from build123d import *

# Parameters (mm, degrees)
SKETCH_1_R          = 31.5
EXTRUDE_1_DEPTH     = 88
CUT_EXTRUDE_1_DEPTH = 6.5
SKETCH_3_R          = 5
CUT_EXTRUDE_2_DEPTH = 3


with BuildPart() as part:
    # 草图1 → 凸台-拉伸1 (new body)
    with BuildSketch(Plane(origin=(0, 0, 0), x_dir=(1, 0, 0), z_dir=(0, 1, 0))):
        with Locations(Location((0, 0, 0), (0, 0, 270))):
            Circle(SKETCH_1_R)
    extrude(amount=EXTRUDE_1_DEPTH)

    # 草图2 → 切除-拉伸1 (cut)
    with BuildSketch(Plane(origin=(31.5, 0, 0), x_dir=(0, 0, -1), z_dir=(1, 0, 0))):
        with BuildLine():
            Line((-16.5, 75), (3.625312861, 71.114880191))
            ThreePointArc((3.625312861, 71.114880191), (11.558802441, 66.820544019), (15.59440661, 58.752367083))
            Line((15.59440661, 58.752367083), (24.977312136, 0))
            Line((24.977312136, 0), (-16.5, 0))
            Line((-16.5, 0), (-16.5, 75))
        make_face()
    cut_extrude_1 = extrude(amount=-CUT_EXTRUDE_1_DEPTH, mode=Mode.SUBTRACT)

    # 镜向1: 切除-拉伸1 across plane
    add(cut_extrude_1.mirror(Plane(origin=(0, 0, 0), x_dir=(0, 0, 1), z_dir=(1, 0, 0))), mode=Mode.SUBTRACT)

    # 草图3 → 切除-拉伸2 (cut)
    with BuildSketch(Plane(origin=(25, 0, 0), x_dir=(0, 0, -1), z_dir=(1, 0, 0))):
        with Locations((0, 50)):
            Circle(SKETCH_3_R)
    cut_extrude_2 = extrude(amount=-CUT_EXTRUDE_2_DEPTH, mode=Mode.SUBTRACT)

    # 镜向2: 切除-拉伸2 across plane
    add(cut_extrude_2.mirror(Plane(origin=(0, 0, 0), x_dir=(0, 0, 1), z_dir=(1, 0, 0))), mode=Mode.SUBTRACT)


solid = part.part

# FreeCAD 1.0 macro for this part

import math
import FreeCAD as App
import Part
import Sketcher

V = App.Vector
Q = App.Units.Quantity

doc = App.newDocument("Part")
body = doc.addObject("PartDesign::Body", "Body")

# Sketch on XZ plane
sketch1 = body.newObject("Sketcher::SketchObject", "Sketch")
sketch1.AttachmentSupport = (doc.getObject("XZ_Plane"), [""])
sketch1.MapMode = "FlatFace"
sketch1.addGeometry(Part.Circle(V(0, 0, 0), V(0, 0, 1), 31.5), False)
sketch1.addConstraint([
    Sketcher.Constraint("Coincident", 0, 3, -1, 1),
    Sketcher.Constraint("Diameter", 0, Q("63 mm")),
])
pad1 = body.newObject("PartDesign::Pad", "Pad")
pad1.Profile = sketch1
pad1.Length = 88
pad1.Reversed = True

# Sketch on YZ plane
sketch2 = body.newObject("Sketcher::SketchObject", "Sketch001")
sketch2.AttachmentSupport = (doc.getObject("YZ_Plane"), [""])
sketch2.MapMode = "FlatFace"
sketch2.AttachmentOffset = App.Placement(V(0, 0, 31.5), App.Rotation())
sketch2.addGeometry([
    Part.LineSegment(V(71.11488, -3.625313, 0), V(75, 16.5, 0)),  # 0
    Part.LineSegment(V(75, 16.5, 0), V(0, 16.5, 0)),  # 1
    Part.LineSegment(V(0, 16.5, 0), V(0, -24.977312, 0)),  # 2
    Part.LineSegment(V(0, -24.977312, 0), V(58.752367, -15.594407, 0)),  # 3
    Part.ArcOfCircle(Part.Circle(V(56.386805, -0.782111, 0), V(0, 0, 1), 15), math.radians(-80.926339), math.radians(-10.926339)),  # 4
], False)
sketch2.addConstraint([
    Sketcher.Constraint("Coincident", 0, 2, 1, 1),
    Sketcher.Constraint("Coincident", 1, 2, 2, 1),
    Sketcher.Constraint("Coincident", 2, 2, 3, 1),
    Sketcher.Constraint("Tangent", 3, 2, 4, 1),
    Sketcher.Constraint("Tangent", 4, 2, 0, 1),
    Sketcher.Constraint("Horizontal", 1),
    Sketcher.Constraint("Vertical", 2),
    Sketcher.Constraint("PointOnObject", 1, 2, -2),
    Sketcher.Constraint("Radius", 4, Q("15 mm")),
    Sketcher.Constraint("DistanceX", 1, 2, 1, 1, Q("75 mm")),
    Sketcher.Constraint("DistanceY", -1, 1, 0, 2, Q("16.5 mm")),
    Sketcher.Constraint("DistanceY", 2, 2, 4, 2, Q("21.351999 mm")),
    Sketcher.Constraint("DistanceY", 2, 2, 4, 3, Q("24.195202 mm")),
    Sketcher.Constraint("DistanceY", 2, 2, 2, 1, Q("41.477312 mm")),
])
pocket1 = body.newObject("PartDesign::Pocket", "Pocket")
pocket1.Profile = sketch2
pocket1.Length = 6.5
doc.recompute()

mirrored = body.newObject("PartDesign::Mirrored", "Mirrored")
mirrored.Originals = [pocket1]
mirrored.MirrorPlane = (doc.getObject("YZ_Plane"), [""])
body.Tip = mirrored

# Sketch on YZ plane
sketch3 = body.newObject("Sketcher::SketchObject", "Sketch002")
sketch3.AttachmentSupport = (doc.getObject("YZ_Plane"), [""])
sketch3.MapMode = "FlatFace"
sketch3.AttachmentOffset = App.Placement(V(0, 0, 25), App.Rotation())
sketch3.addGeometry(Part.Circle(V(50, 0, 0), V(0, 0, 1), 5), False)
sketch3.addConstraint([
    Sketcher.Constraint("PointOnObject", 0, 3, -1),
    Sketcher.Constraint("Diameter", 0, Q("10 mm")),
    Sketcher.Constraint("DistanceX", -1, 1, 0, 3, Q("50 mm")),
])
pocket2 = body.newObject("PartDesign::Pocket", "Pocket001")
pocket2.Profile = sketch3
pocket2.Length = 3
doc.recompute()

mirrored2 = body.newObject("PartDesign::Mirrored", "Mirrored001")
mirrored2.Originals = [pocket2]
mirrored2.MirrorPlane = (doc.getObject("YZ_Plane"), [""])
body.Tip = mirrored2

doc.recompute()
